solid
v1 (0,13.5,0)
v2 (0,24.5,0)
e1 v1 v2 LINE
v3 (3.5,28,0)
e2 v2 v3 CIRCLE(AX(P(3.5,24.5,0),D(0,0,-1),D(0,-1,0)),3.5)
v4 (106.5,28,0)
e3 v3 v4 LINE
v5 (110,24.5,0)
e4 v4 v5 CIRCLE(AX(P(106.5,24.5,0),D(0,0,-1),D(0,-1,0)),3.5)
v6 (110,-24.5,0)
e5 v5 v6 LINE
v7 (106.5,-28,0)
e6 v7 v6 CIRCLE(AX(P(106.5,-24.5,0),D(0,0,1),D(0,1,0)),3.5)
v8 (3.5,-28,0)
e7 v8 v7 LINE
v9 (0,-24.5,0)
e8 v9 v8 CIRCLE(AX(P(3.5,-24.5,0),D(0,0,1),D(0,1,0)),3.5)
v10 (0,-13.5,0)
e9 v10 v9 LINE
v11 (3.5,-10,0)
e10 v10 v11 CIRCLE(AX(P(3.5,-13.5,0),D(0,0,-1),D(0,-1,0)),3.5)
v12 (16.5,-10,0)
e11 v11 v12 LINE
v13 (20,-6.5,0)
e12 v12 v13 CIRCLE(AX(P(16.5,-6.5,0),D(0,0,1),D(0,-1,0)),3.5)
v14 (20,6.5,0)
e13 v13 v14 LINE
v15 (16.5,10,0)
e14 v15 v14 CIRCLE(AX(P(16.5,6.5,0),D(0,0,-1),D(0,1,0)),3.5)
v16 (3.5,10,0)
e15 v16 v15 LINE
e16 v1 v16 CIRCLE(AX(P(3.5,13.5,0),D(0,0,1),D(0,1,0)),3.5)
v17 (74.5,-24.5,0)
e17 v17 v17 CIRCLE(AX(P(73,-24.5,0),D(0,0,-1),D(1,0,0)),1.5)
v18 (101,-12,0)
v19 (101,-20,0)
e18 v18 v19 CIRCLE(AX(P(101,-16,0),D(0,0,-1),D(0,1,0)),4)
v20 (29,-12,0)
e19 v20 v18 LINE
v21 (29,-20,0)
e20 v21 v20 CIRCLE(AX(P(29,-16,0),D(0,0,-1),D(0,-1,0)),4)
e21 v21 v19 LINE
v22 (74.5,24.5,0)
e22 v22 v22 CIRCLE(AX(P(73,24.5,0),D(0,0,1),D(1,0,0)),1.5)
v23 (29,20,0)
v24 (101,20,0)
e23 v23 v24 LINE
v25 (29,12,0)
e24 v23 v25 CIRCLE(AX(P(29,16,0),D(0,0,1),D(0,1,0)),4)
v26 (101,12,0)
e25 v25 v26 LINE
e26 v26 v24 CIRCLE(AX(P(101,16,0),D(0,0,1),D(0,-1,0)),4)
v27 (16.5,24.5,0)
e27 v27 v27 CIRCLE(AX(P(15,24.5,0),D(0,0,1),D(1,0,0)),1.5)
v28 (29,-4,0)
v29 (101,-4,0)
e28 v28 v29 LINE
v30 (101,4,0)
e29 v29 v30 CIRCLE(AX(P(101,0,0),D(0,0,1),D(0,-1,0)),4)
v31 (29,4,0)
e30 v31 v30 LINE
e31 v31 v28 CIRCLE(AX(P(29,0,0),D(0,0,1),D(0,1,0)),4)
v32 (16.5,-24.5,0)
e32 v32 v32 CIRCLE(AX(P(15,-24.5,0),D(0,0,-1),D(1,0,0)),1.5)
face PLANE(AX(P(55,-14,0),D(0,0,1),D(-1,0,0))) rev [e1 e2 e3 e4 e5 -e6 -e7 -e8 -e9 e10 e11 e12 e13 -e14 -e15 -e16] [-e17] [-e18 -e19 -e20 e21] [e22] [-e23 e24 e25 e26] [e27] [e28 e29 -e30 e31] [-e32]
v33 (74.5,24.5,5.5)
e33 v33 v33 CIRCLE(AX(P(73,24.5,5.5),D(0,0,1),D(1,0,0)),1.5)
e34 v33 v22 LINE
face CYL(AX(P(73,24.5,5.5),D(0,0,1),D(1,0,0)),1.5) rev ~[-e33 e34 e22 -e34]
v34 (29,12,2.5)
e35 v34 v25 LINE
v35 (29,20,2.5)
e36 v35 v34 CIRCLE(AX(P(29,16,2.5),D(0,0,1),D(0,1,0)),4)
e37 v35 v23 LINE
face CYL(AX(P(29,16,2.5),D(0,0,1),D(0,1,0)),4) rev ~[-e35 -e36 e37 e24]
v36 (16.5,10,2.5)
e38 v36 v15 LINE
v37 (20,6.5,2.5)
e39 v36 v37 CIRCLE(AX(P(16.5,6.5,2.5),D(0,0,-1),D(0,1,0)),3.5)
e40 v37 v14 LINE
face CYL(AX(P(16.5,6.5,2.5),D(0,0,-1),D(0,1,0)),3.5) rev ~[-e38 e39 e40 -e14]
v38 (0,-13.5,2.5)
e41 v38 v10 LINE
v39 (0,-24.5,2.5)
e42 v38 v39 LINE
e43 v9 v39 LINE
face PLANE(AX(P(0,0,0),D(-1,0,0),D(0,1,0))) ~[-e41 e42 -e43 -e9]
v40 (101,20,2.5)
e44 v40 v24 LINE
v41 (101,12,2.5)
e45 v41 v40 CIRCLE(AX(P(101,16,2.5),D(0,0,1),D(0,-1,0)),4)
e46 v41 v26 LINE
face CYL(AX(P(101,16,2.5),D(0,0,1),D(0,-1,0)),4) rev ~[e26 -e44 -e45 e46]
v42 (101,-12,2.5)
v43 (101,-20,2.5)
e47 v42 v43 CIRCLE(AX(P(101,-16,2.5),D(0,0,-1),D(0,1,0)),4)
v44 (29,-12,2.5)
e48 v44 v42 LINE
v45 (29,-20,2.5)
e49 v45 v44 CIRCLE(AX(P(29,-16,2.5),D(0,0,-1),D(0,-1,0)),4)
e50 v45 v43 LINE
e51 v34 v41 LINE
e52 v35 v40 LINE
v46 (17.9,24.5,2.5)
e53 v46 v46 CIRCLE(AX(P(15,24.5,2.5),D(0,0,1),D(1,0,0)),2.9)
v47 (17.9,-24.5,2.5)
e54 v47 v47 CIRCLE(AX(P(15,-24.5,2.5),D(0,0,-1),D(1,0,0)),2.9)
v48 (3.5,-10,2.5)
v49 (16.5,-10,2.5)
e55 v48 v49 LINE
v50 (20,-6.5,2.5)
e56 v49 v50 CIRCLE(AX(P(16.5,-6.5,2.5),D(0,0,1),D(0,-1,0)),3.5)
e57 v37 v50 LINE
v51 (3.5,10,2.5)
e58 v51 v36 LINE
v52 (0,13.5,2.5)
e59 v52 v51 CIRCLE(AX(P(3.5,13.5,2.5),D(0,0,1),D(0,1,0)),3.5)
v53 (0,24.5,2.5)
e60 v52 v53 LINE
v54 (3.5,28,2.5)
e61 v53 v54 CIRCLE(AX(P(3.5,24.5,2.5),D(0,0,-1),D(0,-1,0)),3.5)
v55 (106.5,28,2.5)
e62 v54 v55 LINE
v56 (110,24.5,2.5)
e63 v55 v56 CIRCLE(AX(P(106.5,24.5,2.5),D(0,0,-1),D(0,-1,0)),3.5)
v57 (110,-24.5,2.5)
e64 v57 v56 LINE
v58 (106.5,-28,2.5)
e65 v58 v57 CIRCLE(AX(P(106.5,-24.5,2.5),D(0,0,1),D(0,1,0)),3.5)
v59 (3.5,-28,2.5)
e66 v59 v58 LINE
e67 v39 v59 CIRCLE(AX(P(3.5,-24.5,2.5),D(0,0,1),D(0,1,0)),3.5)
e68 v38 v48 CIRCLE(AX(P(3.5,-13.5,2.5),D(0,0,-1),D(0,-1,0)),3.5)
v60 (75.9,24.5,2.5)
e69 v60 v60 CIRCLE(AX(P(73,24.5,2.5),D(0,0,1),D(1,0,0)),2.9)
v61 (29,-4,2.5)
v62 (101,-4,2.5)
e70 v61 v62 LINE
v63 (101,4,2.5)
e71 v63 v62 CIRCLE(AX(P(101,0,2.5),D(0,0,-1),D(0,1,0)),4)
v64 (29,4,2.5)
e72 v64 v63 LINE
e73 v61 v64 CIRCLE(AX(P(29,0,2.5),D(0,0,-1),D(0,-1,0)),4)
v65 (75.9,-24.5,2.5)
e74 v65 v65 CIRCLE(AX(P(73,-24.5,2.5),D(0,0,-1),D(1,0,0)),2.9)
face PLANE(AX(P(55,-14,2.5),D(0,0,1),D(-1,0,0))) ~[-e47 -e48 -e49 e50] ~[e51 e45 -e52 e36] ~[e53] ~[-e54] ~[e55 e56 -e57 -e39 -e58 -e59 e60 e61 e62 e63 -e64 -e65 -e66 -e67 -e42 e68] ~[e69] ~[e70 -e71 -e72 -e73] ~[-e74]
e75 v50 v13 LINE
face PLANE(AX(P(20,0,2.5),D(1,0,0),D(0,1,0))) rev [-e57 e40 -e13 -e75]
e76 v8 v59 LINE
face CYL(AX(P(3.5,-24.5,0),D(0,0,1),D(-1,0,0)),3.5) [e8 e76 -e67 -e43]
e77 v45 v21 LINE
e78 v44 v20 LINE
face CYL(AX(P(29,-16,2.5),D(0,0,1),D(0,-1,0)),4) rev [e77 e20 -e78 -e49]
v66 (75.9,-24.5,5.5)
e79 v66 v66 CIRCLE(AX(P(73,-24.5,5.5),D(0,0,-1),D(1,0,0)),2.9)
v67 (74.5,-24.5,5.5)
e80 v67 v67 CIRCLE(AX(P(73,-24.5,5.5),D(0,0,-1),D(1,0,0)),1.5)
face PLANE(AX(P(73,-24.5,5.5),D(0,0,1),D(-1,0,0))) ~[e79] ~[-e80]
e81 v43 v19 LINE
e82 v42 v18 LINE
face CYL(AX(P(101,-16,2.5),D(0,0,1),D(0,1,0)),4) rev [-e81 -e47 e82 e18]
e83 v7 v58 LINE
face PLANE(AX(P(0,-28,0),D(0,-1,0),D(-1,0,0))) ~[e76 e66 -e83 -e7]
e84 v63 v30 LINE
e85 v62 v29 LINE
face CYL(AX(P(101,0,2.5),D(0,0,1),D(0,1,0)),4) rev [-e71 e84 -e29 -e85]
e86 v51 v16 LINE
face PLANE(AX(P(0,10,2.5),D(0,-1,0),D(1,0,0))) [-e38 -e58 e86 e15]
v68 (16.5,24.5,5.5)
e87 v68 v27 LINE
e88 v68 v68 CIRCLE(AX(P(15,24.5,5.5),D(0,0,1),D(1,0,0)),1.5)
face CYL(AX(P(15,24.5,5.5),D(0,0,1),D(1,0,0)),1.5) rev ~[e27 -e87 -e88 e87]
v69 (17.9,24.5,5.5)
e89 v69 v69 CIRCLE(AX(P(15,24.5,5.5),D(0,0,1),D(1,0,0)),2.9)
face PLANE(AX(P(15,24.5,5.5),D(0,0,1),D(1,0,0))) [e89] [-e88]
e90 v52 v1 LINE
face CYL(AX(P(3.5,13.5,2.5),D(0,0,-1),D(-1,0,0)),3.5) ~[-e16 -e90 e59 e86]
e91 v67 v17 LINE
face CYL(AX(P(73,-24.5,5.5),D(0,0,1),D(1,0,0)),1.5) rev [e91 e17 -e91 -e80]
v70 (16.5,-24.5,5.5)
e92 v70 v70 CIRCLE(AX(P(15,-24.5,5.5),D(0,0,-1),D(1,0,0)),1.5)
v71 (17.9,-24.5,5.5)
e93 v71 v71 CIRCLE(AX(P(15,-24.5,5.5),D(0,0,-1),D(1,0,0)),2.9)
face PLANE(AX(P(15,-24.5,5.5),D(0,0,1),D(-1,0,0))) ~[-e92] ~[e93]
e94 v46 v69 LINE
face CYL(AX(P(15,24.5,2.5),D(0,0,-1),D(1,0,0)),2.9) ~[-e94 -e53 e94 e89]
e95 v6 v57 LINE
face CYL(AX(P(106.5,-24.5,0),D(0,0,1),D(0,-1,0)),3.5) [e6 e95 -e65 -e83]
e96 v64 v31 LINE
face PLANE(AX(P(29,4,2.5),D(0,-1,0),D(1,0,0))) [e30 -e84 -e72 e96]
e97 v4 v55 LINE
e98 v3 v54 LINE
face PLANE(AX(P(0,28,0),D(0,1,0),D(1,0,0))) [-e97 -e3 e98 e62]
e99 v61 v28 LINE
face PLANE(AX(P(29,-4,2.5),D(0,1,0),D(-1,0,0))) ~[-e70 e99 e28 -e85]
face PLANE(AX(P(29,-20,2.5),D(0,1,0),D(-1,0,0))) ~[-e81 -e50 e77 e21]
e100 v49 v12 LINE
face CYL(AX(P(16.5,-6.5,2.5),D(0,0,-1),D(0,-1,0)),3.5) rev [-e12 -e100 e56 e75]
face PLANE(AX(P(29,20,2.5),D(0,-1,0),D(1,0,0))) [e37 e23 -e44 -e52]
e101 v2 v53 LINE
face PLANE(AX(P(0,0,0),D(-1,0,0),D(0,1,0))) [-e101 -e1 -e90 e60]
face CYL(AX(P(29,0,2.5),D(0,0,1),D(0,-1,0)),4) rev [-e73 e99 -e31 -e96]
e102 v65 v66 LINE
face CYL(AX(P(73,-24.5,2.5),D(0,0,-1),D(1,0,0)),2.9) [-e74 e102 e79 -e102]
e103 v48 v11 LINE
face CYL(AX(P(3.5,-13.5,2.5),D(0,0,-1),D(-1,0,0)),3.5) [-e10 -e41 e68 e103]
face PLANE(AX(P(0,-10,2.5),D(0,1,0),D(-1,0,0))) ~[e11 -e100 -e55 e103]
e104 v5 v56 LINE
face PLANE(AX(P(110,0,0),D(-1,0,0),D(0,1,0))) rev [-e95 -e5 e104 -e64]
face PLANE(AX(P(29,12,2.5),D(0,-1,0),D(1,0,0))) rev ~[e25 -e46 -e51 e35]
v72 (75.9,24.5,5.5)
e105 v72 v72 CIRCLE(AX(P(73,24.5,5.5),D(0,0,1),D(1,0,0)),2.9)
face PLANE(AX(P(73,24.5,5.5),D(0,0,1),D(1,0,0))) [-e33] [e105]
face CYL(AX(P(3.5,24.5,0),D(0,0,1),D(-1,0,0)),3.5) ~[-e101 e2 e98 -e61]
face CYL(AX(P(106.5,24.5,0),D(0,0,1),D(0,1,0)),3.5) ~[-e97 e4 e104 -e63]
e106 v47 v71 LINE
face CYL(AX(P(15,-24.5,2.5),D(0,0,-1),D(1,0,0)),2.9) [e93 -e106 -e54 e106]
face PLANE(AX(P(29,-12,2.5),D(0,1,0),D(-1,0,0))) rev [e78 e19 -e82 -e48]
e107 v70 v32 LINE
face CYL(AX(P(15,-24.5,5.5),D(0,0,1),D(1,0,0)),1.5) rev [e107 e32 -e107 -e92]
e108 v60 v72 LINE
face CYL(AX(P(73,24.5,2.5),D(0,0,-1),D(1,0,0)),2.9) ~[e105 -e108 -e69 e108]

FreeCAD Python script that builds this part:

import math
import FreeCAD as App
import Part
import Sketcher

V = App.Vector
Q = App.Units.Quantity


def edges_at(feature, points):
    """Names of the edges that pass closest to the given points."""
    edges = feature.Shape.Edges
    near = lambda p: min(range(len(edges)), key=lambda i: edges[i].distToShape(Part.Vertex(*p))[0])
    return sorted({f"Edge{near(p) + 1}" for p in points})


def add_polygon(sketch, points):
    """Adds a closed chain of lines whose ends are joined by coincident constraints."""
    first, n = sketch.GeometryCount, len(points)
    for a, b in zip(points, points[1:] + points[:1]):
        sketch.addGeometry(Part.LineSegment(App.Vector(*a, 0), App.Vector(*b, 0)), False)
    for i in range(n):
        sketch.addConstraint(Sketcher.Constraint("Coincident", first + i, 2, first + (i + 1) % n, 1))

doc = App.newDocument("Part")
params = doc.addObject("Spreadsheet::Sheet", "Params")
for row, (alias, value) in enumerate([
    ("sketch1_width", "110 mm"),
    ("sketch1_height", "28 mm"),
    ("pad1_length", "2.5 mm"),
    ("sketch2_diameter", "5.8 mm"),
    ("pad2_length", "3 mm"),
    ("sketch3_diameter", "3 mm"),
    ("sketch4_radius", "4 mm"),
    ("sketch4_width", "72 mm"),
    ("linearpattern_pitch", "16 mm"),
    ("sketch5_width", "20 mm"),
    ("sketch5_height", "10 mm"),
    ("fillet_radius", "3.5 mm"),
], start=1):
    params.set(f"A{row}", alias)
    params.set(f"B{row}", "=" + value)
    params.setAlias(f"B{row}", alias)

body = doc.addObject("PartDesign::Body", "Body")

# Sketch on XY plane
sketch1 = doc.addObject("Sketcher::SketchObject", "Sketch")
body.addObject(sketch1)
sketch1.AttachmentSupport = (doc.XY_Plane, [""])
sketch1.MapMode = "FlatFace"
add_polygon(sketch1, [(0, 28), (0, 0), (110, 0), (110, 28)])  # lines 0-3
sketch1.addConstraint([
    Sketcher.Constraint("Vertical", 0),
    Sketcher.Constraint("Horizontal", 1),
    Sketcher.Constraint("Vertical", 2),
    Sketcher.Constraint("Horizontal", 3),
    Sketcher.Constraint("Coincident", 0, 2, -1, 1),
    Sketcher.Constraint("DistanceX", 1, 1, 1, 2, Q("110 mm")),
    Sketcher.Constraint("DistanceY", 0, 2, 0, 1, Q("28 mm")),
])
sketch1.setExpression("Constraints[9]", "Params.sketch1_width")
sketch1.setExpression("Constraints[10]", "Params.sketch1_height")
pad1 = doc.addObject("PartDesign::Pad", "Pad")
body.addObject(pad1)
pad1.Profile = sketch1
pad1.setExpression("Length", "Params.pad1_length")

# Sketch on XY plane
sketch2 = doc.addObject("Sketcher::SketchObject", "Sketch001")
body.addObject(sketch2)
sketch2.AttachmentSupport = (doc.XY_Plane, [""])
sketch2.MapMode = "FlatFace"
sketch2.AttachmentOffset = App.Placement(V(0, 0, 2.5), App.Rotation())
sketch2.addGeometry([
    Part.Circle(V(15, 24.5, 0), V(0, 0, 1), 2.9),
    Part.Circle(V(73, 24.5, 0), V(0, 0, 1), 2.9),
], False)
sketch2.addConstraint([
    Sketcher.Constraint("Equal", 0, 1),
    Sketcher.Constraint("Horizontal", 0, 3, 1, 3),
    Sketcher.Constraint("Diameter", 0, Q("5.8 mm")),
    Sketcher.Constraint("DistanceX", -1, 1, 0, 3, Q("15 mm")),
    Sketcher.Constraint("DistanceX", -1, 1, 1, 3, Q("73 mm")),
    Sketcher.Constraint("DistanceY", -1, 1, 0, 3, Q("24.5 mm")),
])
sketch2.setExpression("Constraints[2]", "Params.sketch2_diameter")
pad2 = doc.addObject("PartDesign::Pad", "Pad001")
body.addObject(pad2)
pad2.Profile = sketch2
pad2.setExpression("Length", "Params.pad2_length")

# Sketch on XY plane
sketch3 = doc.addObject("Sketcher::SketchObject", "Sketch002")
body.addObject(sketch3)
sketch3.AttachmentSupport = (doc.XY_Plane, [""])
sketch3.MapMode = "FlatFace"
sketch3.AttachmentOffset = App.Placement(V(0, 0, 5.5), App.Rotation())
sketch3.addGeometry([
    Part.Circle(V(15, 24.5, 0), V(0, 0, 1), 1.5),
    Part.Circle(V(73, 24.5, 0), V(0, 0, 1), 1.5),
], False)
sketch3.addConstraint([
    Sketcher.Constraint("Equal", 0, 1),
    Sketcher.Constraint("Horizontal", 0, 3, 1, 3),
    Sketcher.Constraint("Diameter", 0, Q("3 mm")),
    Sketcher.Constraint("DistanceX", -1, 1, 0, 3, Q("15 mm")),
    Sketcher.Constraint("DistanceX", -1, 1, 1, 3, Q("73 mm")),
    Sketcher.Constraint("DistanceY", -1, 1, 0, 3, Q("24.5 mm")),
])
sketch3.setExpression("Constraints[2]", "Params.sketch3_diameter")
pocket1 = doc.addObject("PartDesign::Pocket", "Pocket")
body.addObject(pocket1)
pocket1.Profile = sketch3
pocket1.Type = "ThroughAll"

# Sketch on XY plane
sketch4 = doc.addObject("Sketcher::SketchObject", "Sketch003")
body.addObject(sketch4)
sketch4.AttachmentSupport = (doc.XY_Plane, [""])
sketch4.MapMode = "FlatFace"
sketch4.AttachmentOffset = App.Placement(V(0, 0, 2.5), App.Rotation())
sketch4.addGeometry([
    Part.ArcOfCircle(Part.Circle(V(29, 0, 0), V(0, 0, 1), 4), math.radians(90), math.radians(270)),
    Part.LineSegment(V(29, -4, 0), V(101, -4, 0)),
    Part.ArcOfCircle(Part.Circle(V(101, 0, 0), V(0, 0, 1), 4), math.radians(-90), math.radians(90)),
    Part.LineSegment(V(101, 4, 0), V(29, 4, 0)),
], False)
sketch4.addConstraint([
    Sketcher.Constraint("Tangent", 0, 2, 1, 1),
    Sketcher.Constraint("Tangent", 1, 2, 2, 1),
    Sketcher.Constraint("Tangent", 2, 2, 3, 1),
    Sketcher.Constraint("Tangent", 3, 2, 0, 1),
    Sketcher.Constraint("Horizontal", 1),
    Sketcher.Constraint("Horizontal", 3),
    Sketcher.Constraint("PointOnObject", 0, 3, -1),
    Sketcher.Constraint("Radius", 0, Q("4 mm")),
    Sketcher.Constraint("DistanceX", 1, 1, 1, 2, Q("72 mm")),
    Sketcher.Constraint("DistanceX", -1, 1, 0, 3, Q("29 mm")),
])
sketch4.setExpression("Constraints[7]", "Params.sketch4_radius")
sketch4.setExpression("Constraints[8]", "Params.sketch4_width")
pocket2 = doc.addObject("PartDesign::Pocket", "Pocket001")
body.addObject(pocket2)
pocket2.Profile = sketch4
pocket2.Type = "ThroughAll"
doc.recompute()

linearpattern = doc.addObject("PartDesign::LinearPattern", "LinearPattern")
body.addObject(linearpattern)
linearpattern.Originals = [pocket2]
linearpattern.Direction = (doc.Y_Axis, [""])
linearpattern.Mode = "offset"
linearpattern.setExpression("Offset", "Params.linearpattern_pitch")
linearpattern.Occurrences = 2
body.Tip = linearpattern

# Sketch on XY plane
sketch5 = doc.addObject("Sketcher::SketchObject", "Sketch004")
body.addObject(sketch5)
sketch5.AttachmentSupport = (doc.XY_Plane, [""])
sketch5.MapMode = "FlatFace"
sketch5.AttachmentOffset = App.Placement(V(0, 0, 2.5), App.Rotation())
add_polygon(sketch5, [(0, 10), (0, 0), (20, 0), (20, 10)])  # lines 0-3
sketch5.addConstraint([
    Sketcher.Constraint("Vertical", 0),
    Sketcher.Constraint("Horizontal", 1),
    Sketcher.Constraint("Vertical", 2),
    Sketcher.Constraint("Horizontal", 3),
    Sketcher.Constraint("Coincident", 0, 2, -1, 1),
    Sketcher.Constraint("DistanceX", 1, 1, 1, 2, Q("20 mm")),
    Sketcher.Constraint("DistanceY", 0, 2, 0, 1, Q("10 mm")),
])
sketch5.setExpression("Constraints[9]", "Params.sketch5_width")
sketch5.setExpression("Constraints[10]", "Params.sketch5_height")
pocket3 = doc.addObject("PartDesign::Pocket", "Pocket002")
body.addObject(pocket3)
pocket3.Profile = sketch5
pocket3.Type = "ThroughAll"
doc.recompute()

fillet = doc.addObject("PartDesign::Fillet", "Fillet")
body.addObject(fillet)
fillet.Base = (pocket3, edges_at(pocket3, [
    (20, 10, 1.25),
    (0, 10, 1.25),
    (0, 28, 1.25),
    (110, 28, 1.25),
]))
fillet.setExpression("Radius", "Params.fillet_radius")
body2 = doc.addObject("PartDesign::Body", "Body001")
doc.recompute()

body2.BaseFeature = body
doc.recompute()

mirroring = doc.addObject("Part::Mirroring", "Mirroring")
mirroring.Source = body
mirroring.Base = V(0, 0, 0)
mirroring.Normal = V(0, -1, 0)
body3 = doc.addObject("PartDesign::Body", "Body002")
body3.BaseFeature = mirroring
boolean = doc.addObject("PartDesign::Boolean", "Boolean")
body2.addObject(boolean)
boolean.Type = "Fuse"
boolean.addObjects([body3])
doc.recompute()
mirroring.Visibility = False

doc.recompute()
